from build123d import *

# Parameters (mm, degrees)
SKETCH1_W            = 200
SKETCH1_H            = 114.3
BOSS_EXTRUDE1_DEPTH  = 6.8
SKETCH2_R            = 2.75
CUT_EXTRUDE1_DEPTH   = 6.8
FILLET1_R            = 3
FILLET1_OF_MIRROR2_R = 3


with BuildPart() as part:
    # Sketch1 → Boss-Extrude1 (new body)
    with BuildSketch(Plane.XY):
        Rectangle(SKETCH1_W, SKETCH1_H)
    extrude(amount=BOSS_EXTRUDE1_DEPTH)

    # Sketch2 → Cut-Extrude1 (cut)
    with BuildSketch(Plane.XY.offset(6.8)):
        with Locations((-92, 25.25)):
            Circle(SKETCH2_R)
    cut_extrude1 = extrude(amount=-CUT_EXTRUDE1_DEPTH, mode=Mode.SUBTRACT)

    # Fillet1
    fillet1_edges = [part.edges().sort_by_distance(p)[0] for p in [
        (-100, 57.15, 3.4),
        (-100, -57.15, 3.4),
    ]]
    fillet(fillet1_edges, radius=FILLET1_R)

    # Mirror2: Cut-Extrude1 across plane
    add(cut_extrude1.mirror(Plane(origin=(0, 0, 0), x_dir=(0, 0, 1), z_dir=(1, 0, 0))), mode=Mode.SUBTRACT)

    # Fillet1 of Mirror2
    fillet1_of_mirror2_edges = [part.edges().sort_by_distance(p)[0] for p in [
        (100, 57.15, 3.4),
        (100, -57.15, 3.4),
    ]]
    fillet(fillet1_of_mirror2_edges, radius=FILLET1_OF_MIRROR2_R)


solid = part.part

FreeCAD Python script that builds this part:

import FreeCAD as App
import Part
import Sketcher

V = App.Vector
Q = App.Units.Quantity


def edges_at(feature, points):
    """Names of the edges that pass closest to the given points."""
    edges = feature.Shape.Edges
    near = lambda p: min(range(len(edges)), key=lambda i: edges[i].distToShape(Part.Vertex(*p))[0])
    return sorted({f"Edge{near(p) + 1}" for p in points})


def add_polygon(sketch, points):
    """Adds a closed chain of lines whose ends are joined by coincident constraints."""
    first, n = sketch.GeometryCount, len(points)
    for a, b in zip(points, points[1:] + points[:1]):
        sketch.addGeometry(Part.LineSegment(App.Vector(*a, 0), App.Vector(*b, 0)), False)
    for i in range(n):
        sketch.addConstraint(Sketcher.Constraint("Coincident", first + i, 2, first + (i + 1) % n, 1))

doc = App.newDocument("Part")
body = doc.addObject("PartDesign::Body", "Body")

sketch1 = body.newObject("Sketcher::SketchObject", "Sketch")
sketch1.AttachmentSupport = (doc.getObject("XY_Plane"), [""])
sketch1.MapMode = "FlatFace"
add_polygon(sketch1, [(-100, 57), (-100, -57), (100, -57), (100, 57)])
sketch1.addConstraint([
    Sketcher.Constraint("Vertical", 0),
    Sketcher.Constraint("Horizontal", 1),
    Sketcher.Constraint("Vertical", 2),
    Sketcher.Constraint("Horizontal", 3),
    Sketcher.Constraint("Symmetric", 0, 2, 2, 2, -1, 1),
    Sketcher.Constraint("DistanceX", 1, 1, 1, 2, Q("200 mm")),
    Sketcher.Constraint("DistanceY", 0, 2, 0, 1, Q("114.3 mm")),
])
pad1 = body.newObject("PartDesign::Pad", "Pad")
pad1.Profile = sketch1
pad1.Length = 6.8

sketch2 = body.newObject("Sketcher::SketchObject", "Sketch001")
sketch2.AttachmentSupport = (doc.getObject("XY_Plane"), [""])
sketch2.MapMode = "FlatFace"
sketch2.AttachmentOffset = App.Placement(V(0, 0, 6.8), App.Rotation())
sketch2.addGeometry(Part.Circle(V(-92, 25.2, 0), V(0, 0, 1), 2.8), False)
sketch2.addConstraint([
    Sketcher.Constraint("Diameter", 0, Q("5.5 mm")),
    Sketcher.Constraint("DistanceX", 0, 3, -1, 1, Q("92 mm")),
    Sketcher.Constraint("DistanceY", -1, 1, 0, 3, Q("25.25 mm")),
])
pocket1 = body.newObject("PartDesign::Pocket", "Pocket")
pocket1.Profile = sketch2
pocket1.Length = 6.8
doc.recompute()

fillet = body.newObject("PartDesign::Fillet", "Fillet")
fillet.Base = (pocket1, edges_at(pocket1, [(-100, 57.15, 3.4), (-100, -57.15, 3.4)]))
fillet.Radius = 3
doc.recompute()

mirrored = body.newObject("PartDesign::Mirrored", "Mirrored")
mirrored.Originals = [pocket1]
mirrored.MirrorPlane = (doc.getObject("YZ_Plane"), [""])
body.Tip = mirrored
doc.recompute()

fillet2 = body.newObject("PartDesign::Fillet", "Fillet001")
fillet2.Base = (mirrored, edges_at(mirrored, [(100, 57.15, 3.4), (100, -57.15, 3.4)]))
fillet2.Radius = 3

doc.recompute()
